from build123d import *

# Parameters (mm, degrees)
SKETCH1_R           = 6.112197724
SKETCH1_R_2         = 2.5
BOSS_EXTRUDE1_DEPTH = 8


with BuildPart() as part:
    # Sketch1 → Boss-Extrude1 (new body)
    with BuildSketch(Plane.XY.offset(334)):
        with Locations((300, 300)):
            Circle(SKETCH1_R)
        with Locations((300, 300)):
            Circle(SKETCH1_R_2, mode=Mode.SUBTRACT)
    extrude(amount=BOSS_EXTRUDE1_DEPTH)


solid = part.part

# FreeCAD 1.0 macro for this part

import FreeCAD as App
import Part
import Sketcher

V = App.Vector

doc = App.newDocument("Part")
body = doc.addObject("PartDesign::Body", "Body")

# Sketch on XY plane
sketch1 = doc.addObject("Sketcher::SketchObject", "Sketch")
body.addObject(sketch1)
sketch1.AttachmentSupport = (doc.XY_Plane, [""])
sketch1.MapMode = "FlatFace"
sketch1.AttachmentOffset = App.Placement(V(0, 0, 334), App.Rotation())
sketch1.addGeometry([
    Part.Circle(V(300, 300, 0), V(0, 0, 1), 6.112198),
    Part.Circle(V(300, 300, 0), V(0, 0, 1), 2.5),
], False)
sketch1.addConstraint([
    Sketcher.Constraint("Coincident", 1, 3, 0, 3),
    Sketcher.Constraint("Diameter", 1, 5.0),
    Sketcher.Constraint("DistanceX", -1, 1, 0, 3, 300.0),
    Sketcher.Constraint("DistanceY", -1, 1, 0, 3, 300.0),
    Sketcher.Constraint("Diameter", 0, 12.224395),
])
pad1 = doc.addObject("PartDesign::Pad", "Pad")
body.addObject(pad1)
pad1.Profile = sketch1
pad1.Length = 8

doc.recompute()
